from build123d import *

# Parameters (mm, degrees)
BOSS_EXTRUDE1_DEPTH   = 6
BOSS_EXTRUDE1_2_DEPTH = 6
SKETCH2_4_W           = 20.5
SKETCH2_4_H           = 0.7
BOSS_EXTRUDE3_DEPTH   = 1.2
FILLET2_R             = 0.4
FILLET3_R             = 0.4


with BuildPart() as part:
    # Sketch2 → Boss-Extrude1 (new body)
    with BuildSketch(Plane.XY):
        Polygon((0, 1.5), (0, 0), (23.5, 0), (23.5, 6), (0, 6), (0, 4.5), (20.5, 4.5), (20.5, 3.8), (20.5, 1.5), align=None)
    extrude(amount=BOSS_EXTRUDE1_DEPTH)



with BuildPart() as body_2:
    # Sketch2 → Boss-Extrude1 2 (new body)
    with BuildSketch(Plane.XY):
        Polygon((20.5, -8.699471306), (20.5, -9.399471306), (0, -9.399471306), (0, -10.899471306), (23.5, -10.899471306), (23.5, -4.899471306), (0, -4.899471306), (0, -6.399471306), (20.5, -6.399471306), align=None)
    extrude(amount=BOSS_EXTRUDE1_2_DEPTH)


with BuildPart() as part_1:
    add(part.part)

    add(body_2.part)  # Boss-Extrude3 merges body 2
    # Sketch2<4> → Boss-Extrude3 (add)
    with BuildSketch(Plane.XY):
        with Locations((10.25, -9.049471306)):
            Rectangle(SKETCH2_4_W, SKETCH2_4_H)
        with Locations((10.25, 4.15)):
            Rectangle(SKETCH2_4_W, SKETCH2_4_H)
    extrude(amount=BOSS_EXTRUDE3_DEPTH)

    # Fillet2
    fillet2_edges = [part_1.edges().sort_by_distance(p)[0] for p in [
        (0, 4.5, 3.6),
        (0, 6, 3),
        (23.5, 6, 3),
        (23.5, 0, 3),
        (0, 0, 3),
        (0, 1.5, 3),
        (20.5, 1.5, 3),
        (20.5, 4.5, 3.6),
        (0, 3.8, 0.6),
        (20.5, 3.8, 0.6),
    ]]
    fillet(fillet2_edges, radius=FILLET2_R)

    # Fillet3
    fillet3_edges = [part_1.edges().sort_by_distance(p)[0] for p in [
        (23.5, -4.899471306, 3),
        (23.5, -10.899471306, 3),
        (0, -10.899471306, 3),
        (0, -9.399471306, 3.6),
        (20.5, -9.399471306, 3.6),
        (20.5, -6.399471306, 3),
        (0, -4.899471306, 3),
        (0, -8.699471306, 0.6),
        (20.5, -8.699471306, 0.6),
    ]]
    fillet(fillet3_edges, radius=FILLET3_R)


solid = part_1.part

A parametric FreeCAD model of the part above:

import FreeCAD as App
import Part
import Sketcher
from FreeCAD import Vector


def edges_at(feature, points):
    """Names of the edges that pass closest to the given points."""
    edges = feature.Shape.Edges
    near = lambda p: min(range(len(edges)), key=lambda i: edges[i].distToShape(Part.Vertex(*p))[0])
    return sorted({f"Edge{near(p) + 1}" for p in points})


def add_polygon(sketch, points):
    """Adds a closed chain of lines whose ends are joined by coincident constraints."""
    first, n = sketch.GeometryCount, len(points)
    for a, b in zip(points, points[1:] + points[:1]):
        sketch.addGeometry(Part.LineSegment(App.Vector(*a, 0), App.Vector(*b, 0)), False)
    for i in range(n):
        sketch.addConstraint(Sketcher.Constraint("Coincident", first + i, 2, first + (i + 1) % n, 1))

doc = App.newDocument("Part")
body = doc.addObject("PartDesign::Body", "Body")

sketch1 = body.newObject("Sketcher::SketchObject", "Sketch")
sketch1.AttachmentSupport = (doc.getObject("XY_Plane"), [""])
sketch1.MapMode = "FlatFace"
add_polygon(sketch1, [(0, 1.5), (0, 0), (23.5, 0), (23.5, 6), (0, 6), (0, 4.5), (20.5, 4.5), (20.5, 1.5)])
sketch1.addConstraint([
    Sketcher.Constraint("Vertical", 0),
    Sketcher.Constraint("Horizontal", 1),
    Sketcher.Constraint("Vertical", 2),
    Sketcher.Constraint("Horizontal", 3),
    Sketcher.Constraint("Vertical", 4),
    Sketcher.Constraint("Horizontal", 5),
    Sketcher.Constraint("Vertical", 6),
    Sketcher.Constraint("Horizontal", 7),
    Sketcher.Constraint("Coincident", 0, 2, -1, 1),
    Sketcher.Constraint("PointOnObject", 3, 2, -2),
    Sketcher.Constraint("Equal", 0, 4),
    Sketcher.Constraint("DistanceY", 2, 1, 2, 2, 6.0),
    Sketcher.Constraint("DistanceY", 6, 2, 6, 1, 3.0),
    Sketcher.Constraint("DistanceX", 1, 1, 1, 2, 23.5),
    Sketcher.Constraint("DistanceX", 5, 1, 5, 2, 20.5),
])
pad1 = body.newObject("PartDesign::Pad", "Pad")
pad1.Profile = sketch1
pad1.Length = 6
body2 = doc.addObject("PartDesign::Body", "Body001")

sketch2 = body2.newObject("Sketcher::SketchObject", "Sketch001")
sketch2.AttachmentSupport = (doc.getObject("XY_Plane001"), [""])
sketch2.MapMode = "FlatFace"
add_polygon(sketch2, [(20.5, -9.4), (0, -9.4), (0, -10.9), (23.5, -10.9), (23.5, -4.9), (0, -4.9), (0, -6.4), (20.5, -6.4)])
sketch2.addConstraint([
    Sketcher.Constraint("Horizontal", 0),
    Sketcher.Constraint("Vertical", 1),
    Sketcher.Constraint("Horizontal", 2),
    Sketcher.Constraint("Vertical", 3),
    Sketcher.Constraint("Horizontal", 4),
    Sketcher.Constraint("Vertical", 5),
    Sketcher.Constraint("Horizontal", 6),
    Sketcher.Constraint("Vertical", 7),
    Sketcher.Constraint("PointOnObject", 0, 2, -2),
    Sketcher.Constraint("PointOnObject", 4, 2, -2),
    Sketcher.Constraint("Equal", 1, 5),
    Sketcher.Constraint("DistanceY", 3, 1, 3, 2, 6.0),
    Sketcher.Constraint("DistanceY", 7, 2, 7, 1, 3.0),
    Sketcher.Constraint("DistanceX", 0, 2, 0, 1, 20.5),
    Sketcher.Constraint("DistanceX", 2, 1, 2, 2, 23.5),
    Sketcher.Constraint("DistanceY", 0, 2, -1, 1, 9.399471),
])
pad2 = body2.newObject("PartDesign::Pad", "Pad001")
pad2.Profile = sketch2
pad2.Length = 6
body.AllowCompound = True
doc.recompute()

boolean = body.newObject("PartDesign::Boolean", "Boolean")
boolean.Type = "Fuse"
boolean.addObjects([body2])

sketch3 = body.newObject("Sketcher::SketchObject", "Sketch002")
sketch3.AttachmentSupport = (doc.getObject("XY_Plane"), [""])
sketch3.MapMode = "FlatFace"
add_polygon(sketch3, [(0, -8.7), (0, -9.4), (20.5, -9.4), (20.5, -8.7)])
add_polygon(sketch3, [(0, 4.5), (0, 3.8), (20.5, 3.8), (20.5, 4.5)])
sketch3.addConstraint([
    Sketcher.Constraint("Vertical", 0),
    Sketcher.Constraint("Horizontal", 1),
    Sketcher.Constraint("Vertical", 2),
    Sketcher.Constraint("Horizontal", 3),
    Sketcher.Constraint("Vertical", 4),
    Sketcher.Constraint("Horizontal", 5),
    Sketcher.Constraint("Vertical", 6),
    Sketcher.Constraint("Horizontal", 7),
    Sketcher.Constraint("PointOnObject", 0, 2, -2),
    Sketcher.Constraint("PointOnObject", 4, 2, -2),
    Sketcher.Constraint("Vertical", 2, 2, 5, 2),
    Sketcher.Constraint("Equal", 2, 4),
    Sketcher.Constraint("DistanceX", 1, 1, 1, 2, 20.5),
    Sketcher.Constraint("DistanceY", 0, 2, 0, 1, 0.7),
    Sketcher.Constraint("DistanceY", -1, 1, 4, 2, 3.8),
    Sketcher.Constraint("DistanceY", 0, 2, -1, 1, 9.399471),
])
pad3 = body.newObject("PartDesign::Pad", "Pad002")
pad3.Profile = sketch3
pad3.Length = 1.2
doc.recompute()

fillet = body.newObject("PartDesign::Fillet", "Fillet")
fillet.Base = (pad3, edges_at(pad3, [
    (0, 4.5, 3.6),
    (0, 6, 3),
    (23.5, 6, 3),
    (23.5, 0, 3),
    (0, 0, 3),
    (0, 1.5, 3),
    (20.5, 1.5, 3),
    (20.5, 4.5, 3.6),
    (0, 3.8, 0.6),
    (20.5, 3.8, 0.6),
]))
fillet.Radius = 0.4
doc.recompute()

fillet2 = body.newObject("PartDesign::Fillet", "Fillet001")
fillet2.Base = (fillet, edges_at(fillet, [
    (23.5, -4.899, 3),
    (23.5, -10.899, 3),
    (0, -10.899, 3),
    (0, -9.399, 3.6),
    (20.5, -9.399, 3.6),
    (20.5, -6.399, 3),
    (0, -4.899, 3),
    (0, -8.699, 0.6),
    (20.5, -8.699, 0.6),
]))
fillet2.Radius = 0.4

doc.recompute()
